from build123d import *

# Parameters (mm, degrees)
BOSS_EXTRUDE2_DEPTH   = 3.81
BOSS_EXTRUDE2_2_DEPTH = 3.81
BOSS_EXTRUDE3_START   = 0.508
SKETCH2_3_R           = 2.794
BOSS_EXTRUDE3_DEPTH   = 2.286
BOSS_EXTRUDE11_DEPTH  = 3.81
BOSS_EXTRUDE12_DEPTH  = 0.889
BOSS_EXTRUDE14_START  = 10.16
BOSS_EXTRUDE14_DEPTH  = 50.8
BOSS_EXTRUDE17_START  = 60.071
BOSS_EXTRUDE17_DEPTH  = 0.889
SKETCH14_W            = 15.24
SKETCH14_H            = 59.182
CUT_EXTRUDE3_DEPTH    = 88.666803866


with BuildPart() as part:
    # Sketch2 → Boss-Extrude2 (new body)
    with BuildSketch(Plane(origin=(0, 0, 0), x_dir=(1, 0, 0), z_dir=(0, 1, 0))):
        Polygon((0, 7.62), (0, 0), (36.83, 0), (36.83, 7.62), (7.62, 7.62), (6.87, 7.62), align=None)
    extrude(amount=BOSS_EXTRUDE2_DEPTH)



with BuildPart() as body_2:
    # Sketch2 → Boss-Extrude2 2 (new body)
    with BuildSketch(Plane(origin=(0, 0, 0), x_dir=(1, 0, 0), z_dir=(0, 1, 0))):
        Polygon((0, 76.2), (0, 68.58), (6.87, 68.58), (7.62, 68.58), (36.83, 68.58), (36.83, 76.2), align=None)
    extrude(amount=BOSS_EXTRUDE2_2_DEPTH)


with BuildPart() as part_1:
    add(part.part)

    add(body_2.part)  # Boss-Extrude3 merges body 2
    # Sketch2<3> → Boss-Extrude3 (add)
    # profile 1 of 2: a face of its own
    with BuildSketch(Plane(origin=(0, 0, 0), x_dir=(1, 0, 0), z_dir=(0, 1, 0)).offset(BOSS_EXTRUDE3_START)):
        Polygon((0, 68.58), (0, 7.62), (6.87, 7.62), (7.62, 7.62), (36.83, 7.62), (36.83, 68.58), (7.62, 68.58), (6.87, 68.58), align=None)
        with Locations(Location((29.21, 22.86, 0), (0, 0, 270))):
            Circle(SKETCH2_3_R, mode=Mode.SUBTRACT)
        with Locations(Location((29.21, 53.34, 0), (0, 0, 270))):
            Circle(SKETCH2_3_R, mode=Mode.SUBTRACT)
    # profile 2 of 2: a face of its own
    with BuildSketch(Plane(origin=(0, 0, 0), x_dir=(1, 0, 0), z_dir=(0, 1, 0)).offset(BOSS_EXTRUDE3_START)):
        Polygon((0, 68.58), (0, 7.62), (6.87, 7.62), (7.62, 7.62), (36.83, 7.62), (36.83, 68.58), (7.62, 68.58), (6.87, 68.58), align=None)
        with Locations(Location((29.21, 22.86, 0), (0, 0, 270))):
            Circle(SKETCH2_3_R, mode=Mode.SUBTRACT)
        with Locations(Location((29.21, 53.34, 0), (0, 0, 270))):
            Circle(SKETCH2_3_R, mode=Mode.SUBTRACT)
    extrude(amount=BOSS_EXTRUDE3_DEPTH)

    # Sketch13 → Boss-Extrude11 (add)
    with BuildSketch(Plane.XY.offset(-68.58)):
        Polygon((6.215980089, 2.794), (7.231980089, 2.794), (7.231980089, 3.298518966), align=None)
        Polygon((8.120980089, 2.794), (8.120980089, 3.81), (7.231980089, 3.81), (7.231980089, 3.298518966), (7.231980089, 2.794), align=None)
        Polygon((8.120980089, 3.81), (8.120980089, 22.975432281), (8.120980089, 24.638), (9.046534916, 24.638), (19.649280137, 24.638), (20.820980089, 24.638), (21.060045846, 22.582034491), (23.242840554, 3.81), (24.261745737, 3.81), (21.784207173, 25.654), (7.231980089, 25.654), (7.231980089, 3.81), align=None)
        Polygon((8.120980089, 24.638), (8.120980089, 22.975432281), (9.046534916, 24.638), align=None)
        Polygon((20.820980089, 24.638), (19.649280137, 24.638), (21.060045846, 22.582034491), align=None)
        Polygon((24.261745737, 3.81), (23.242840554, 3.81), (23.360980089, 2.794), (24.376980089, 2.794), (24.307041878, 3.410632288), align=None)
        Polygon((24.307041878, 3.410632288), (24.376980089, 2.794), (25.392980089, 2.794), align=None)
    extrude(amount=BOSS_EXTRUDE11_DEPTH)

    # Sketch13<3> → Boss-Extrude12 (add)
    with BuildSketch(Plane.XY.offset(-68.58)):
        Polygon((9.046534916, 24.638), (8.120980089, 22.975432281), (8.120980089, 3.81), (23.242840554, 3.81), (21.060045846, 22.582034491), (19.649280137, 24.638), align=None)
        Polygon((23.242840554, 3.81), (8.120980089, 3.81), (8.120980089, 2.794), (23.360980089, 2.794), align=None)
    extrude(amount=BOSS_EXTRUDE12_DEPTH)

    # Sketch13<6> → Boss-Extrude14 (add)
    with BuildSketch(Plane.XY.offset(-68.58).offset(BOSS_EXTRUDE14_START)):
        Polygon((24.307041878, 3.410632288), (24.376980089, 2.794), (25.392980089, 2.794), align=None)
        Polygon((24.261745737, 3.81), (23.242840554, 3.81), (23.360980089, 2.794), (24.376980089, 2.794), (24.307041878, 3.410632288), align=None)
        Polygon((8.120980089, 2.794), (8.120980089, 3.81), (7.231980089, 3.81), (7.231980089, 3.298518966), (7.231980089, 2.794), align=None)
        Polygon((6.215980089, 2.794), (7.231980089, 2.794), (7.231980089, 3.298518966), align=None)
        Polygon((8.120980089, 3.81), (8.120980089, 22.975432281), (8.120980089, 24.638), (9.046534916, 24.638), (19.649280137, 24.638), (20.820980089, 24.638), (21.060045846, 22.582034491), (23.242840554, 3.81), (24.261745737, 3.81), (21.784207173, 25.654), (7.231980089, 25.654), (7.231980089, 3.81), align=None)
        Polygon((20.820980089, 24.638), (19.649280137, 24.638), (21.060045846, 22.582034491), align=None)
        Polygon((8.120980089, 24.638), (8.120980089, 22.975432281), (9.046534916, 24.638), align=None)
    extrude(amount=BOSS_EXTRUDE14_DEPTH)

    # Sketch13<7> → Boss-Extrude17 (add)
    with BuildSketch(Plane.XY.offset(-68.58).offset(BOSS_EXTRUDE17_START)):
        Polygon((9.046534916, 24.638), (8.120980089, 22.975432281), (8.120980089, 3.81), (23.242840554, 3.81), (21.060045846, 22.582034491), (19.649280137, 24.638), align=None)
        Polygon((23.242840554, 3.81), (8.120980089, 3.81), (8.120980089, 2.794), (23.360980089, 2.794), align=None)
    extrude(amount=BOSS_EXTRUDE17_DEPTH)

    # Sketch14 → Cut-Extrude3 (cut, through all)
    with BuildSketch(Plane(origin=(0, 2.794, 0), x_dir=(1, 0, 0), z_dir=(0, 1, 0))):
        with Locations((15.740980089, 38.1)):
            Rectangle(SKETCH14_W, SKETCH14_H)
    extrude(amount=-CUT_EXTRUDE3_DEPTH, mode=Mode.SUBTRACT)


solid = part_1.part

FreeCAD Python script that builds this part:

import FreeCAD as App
import Part
import Sketcher
Q = App.Units.Quantity


def add_polygon(sketch, points):
    """Adds a closed chain of lines whose ends are joined by coincident constraints."""
    first, n = sketch.GeometryCount, len(points)
    for a, b in zip(points, points[1:] + points[:1]):
        sketch.addGeometry(Part.LineSegment(App.Vector(*a, 0), App.Vector(*b, 0)), False)
    for i in range(n):
        sketch.addConstraint(Sketcher.Constraint("Coincident", first + i, 2, first + (i + 1) % n, 1))

doc = App.newDocument("Part")
body = doc.addObject("PartDesign::Body", "Body")

sketch1 = body.newObject("Sketcher::SketchObject", "Sketch")
sketch1.AttachmentSupport = (doc.getObject("XZ_Plane"), [""])
sketch1.MapMode = "FlatFace"
add_polygon(sketch1, [(0, -8), (0, 0), (37, 0), (37, -8)])
sketch1.addConstraint([
    Sketcher.Constraint("Vertical", 0),
    Sketcher.Constraint("Horizontal", 1),
    Sketcher.Constraint("Vertical", 2),
    Sketcher.Constraint("Horizontal", 3),
    Sketcher.Constraint("Coincident", 0, 2, -1, 1),
    Sketcher.Constraint("DistanceY", 0, 1, 0, 2, Q("0.3 in")),
    Sketcher.Constraint("DistanceX", 1, 1, 1, 2, Q("1.45 in")),
])
pad1 = body.newObject("PartDesign::Pad", "Pad")
pad1.Profile = sketch1
pad1.Length = Q("0.15 in")
pad1.Reversed = True
body2 = doc.addObject("PartDesign::Body", "Body001")

sketch2 = body2.newObject("Sketcher::SketchObject", "Sketch001")
sketch2.AttachmentSupport = (doc.getObject("XZ_Plane001"), [""])
sketch2.MapMode = "FlatFace"
add_polygon(sketch2, [(0, -76), (0, -69), (37, -69), (37, -76)])
sketch2.addConstraint([
    Sketcher.Constraint("Vertical", 0),
    Sketcher.Constraint("Horizontal", 1),
    Sketcher.Constraint("Vertical", 2),
    Sketcher.Constraint("Horizontal", 3),
    Sketcher.Constraint("PointOnObject", 0, 2, -2),
    Sketcher.Constraint("DistanceY", 0, 1, 0, 2, Q("0.3 in")),
    Sketcher.Constraint("DistanceY", 2, 2, -1, 1, Q("3 in")),
    Sketcher.Constraint("DistanceX", 1, 1, 1, 2, Q("1.45 in")),
])
pad2 = body2.newObject("PartDesign::Pad", "Pad001")
pad2.Profile = sketch2
pad2.Length = Q("0.15 in")
pad2.Reversed = True
body.AllowCompound = True
doc.recompute()

boolean = body.newObject("PartDesign::Boolean", "Boolean")
boolean.Type = "Fuse"
boolean.addObjects([body2])

sketch3 = body.newObject("Sketcher::SketchObject", "Sketch002")
sketch3.AttachmentSupport = (doc.getObject("XZ_Plane"), [""])
sketch3.MapMode = "FlatFace"
sketch3.AttachmentOffset = App.Placement(App.Vector(0, 0, -0.02 * 25.4), App.Rotation())
add_polygon(sketch3, [(0, -68.6), (0, -7.6), (36.8, -7.6), (36.8, -68.6)])
sketch3.addGeometry(Part.Circle(App.Vector(29.2, -22.9, 0), App.Vector(0, 0, 1), 2.8), False)
sketch3.addGeometry(Part.Circle(App.Vector(29.2, -53.3, 0), App.Vector(0, 0, 1), 2.8), False)
sketch3.addConstraint([
    Sketcher.Constraint("Vertical", 0),
    Sketcher.Constraint("Horizontal", 1),
    Sketcher.Constraint("Vertical", 2),
    Sketcher.Constraint("Horizontal", 3),
    Sketcher.Constraint("Equal", 4, 5),
    Sketcher.Constraint("PointOnObject", 0, 2, -2),
    Sketcher.Constraint("Vertical", 4, 3, 5, 3),
    Sketcher.Constraint("Diameter", 4, Q("0.22 in")),
    Sketcher.Constraint("DistanceY", 0, 1, 0, 2, Q("2.4 in")),
    Sketcher.Constraint("DistanceX", 1, 1, 1, 2, Q("1.45 in")),
    Sketcher.Constraint("DistanceY", 4, 3, -1, 1, Q("0.9 in")),
    Sketcher.Constraint("DistanceY", 5, 3, -1, 1, Q("2.1 in")),
    Sketcher.Constraint("DistanceY", 0, 2, -1, 1, Q("0.3 in")),
    Sketcher.Constraint("DistanceX", 4, 3, 1, 2, Q("0.3 in")),
])
pad3 = body.newObject("PartDesign::Pad", "Pad002")
pad3.Profile = sketch3
pad3.Length = Q("0.09 in")
pad3.Reversed = True

sketch4 = body.newObject("Sketcher::SketchObject", "Sketch003")
sketch4.AttachmentSupport = (doc.getObject("XY_Plane"), [""])
sketch4.MapMode = "FlatFace"
sketch4.AttachmentOffset = App.Placement(App.Vector(0, 0, -2.7 * 25.4), App.Rotation())
add_polygon(sketch4, [(6.21598, 2.794), (8.12098, 2.794), (8.12098, 22.975432), (9.046535, 24.638), (19.64928, 24.638), (21.060046, 22.582034), (23.242841, 3.81), (23.36098, 2.794), (25.39298, 2.794), (24.307042, 3.410632), (24.261746, 3.81), (21.784207, 25.654), (7.23198, 25.654), (7.23198, 3.298519)])
sketch4.addConstraint([
    Sketcher.Constraint("Horizontal", 0),
    Sketcher.Constraint("Vertical", 1),
    Sketcher.Constraint("Horizontal", 3),
    Sketcher.Constraint("Horizontal", 7),
    Sketcher.Constraint("Horizontal", 11),
    Sketcher.Constraint("Vertical", 12),
    Sketcher.Constraint("DistanceX", 7, 1, 7, 2, Q("0.08 in")),
    Sketcher.Constraint("DistanceX", 0, 2, 6, 2, Q("0.6 in")),
    Sketcher.Constraint("DistanceX", 0, 1, 0, 2, Q("0.075 in")),
    Sketcher.Constraint("DistanceY", -1, 1, 0, 2, Q("0.11 in")),
    Sketcher.Constraint("DistanceY", -1, 1, 2, 2, Q("0.97 in")),
    Sketcher.Constraint("DistanceY", -1, 1, 5, 2, Q("0.15 in")),
    Sketcher.Constraint("DistanceY", -1, 1, 6, 2, Q("0.11 in")),
    Sketcher.Constraint("DistanceY", -1, 1, 9, 2, Q("0.15 in")),
    Sketcher.Constraint("DistanceY", -1, 1, 10, 2, Q("1.01 in")),
    Sketcher.Constraint("DistanceX", 13, 2, 12, 2, Q("0.04 in")),
    Sketcher.Constraint("Distance", 8, Q("1.248798 mm")),
    Sketcher.Constraint("DistanceY", 12, 2, 12, 1, Q("22.355481 mm")),
    Sketcher.Constraint("DistanceX", 1, 2, 3, 2, Q("11.5283 mm")),
    Sketcher.Constraint("DistanceX", 5, 2, 8, 2, Q("1.064201 mm")),
    Sketcher.Constraint("Distance", 9, Q("0.401928 mm")),
    Sketcher.Constraint("Distance", 10, Q("21.984052 mm")),
    Sketcher.Constraint("DistanceX", 3, 1, 3, 2, Q("10.602745 mm")),
    Sketcher.Constraint("DistanceX", 11, 2, 11, 1, Q("14.552227 mm")),
    Sketcher.Constraint("DistanceY", 1, 1, 1, 2, Q("20.181432 mm")),
    Sketcher.Constraint("DistanceX", -1, 1, 0, 2, Q("8.12098 mm")),
    Sketcher.Constraint("DistanceX", 2, 2, 4, 2, Q("12.013511 mm")),
    Sketcher.Constraint("Distance", 4, Q("2.493442 mm")),
])
pad4 = body.newObject("PartDesign::Pad", "Pad003")
pad4.Profile = sketch4
pad4.Length = Q("0.15 in")

sketch5 = body.newObject("Sketcher::SketchObject", "Sketch004")
sketch5.AttachmentSupport = (doc.getObject("XY_Plane"), [""])
sketch5.MapMode = "FlatFace"
sketch5.AttachmentOffset = App.Placement(App.Vector(0, 0, -2.7 * 25.4), App.Rotation())
add_polygon(sketch5, [(9.046535, 24.638), (8.12098, 22.975432), (8.12098, 2.794), (23.36098, 2.794), (23.242841, 3.81), (21.060046, 22.582034), (19.64928, 24.638)])
sketch5.addConstraint([
    Sketcher.Constraint("Vertical", 1),
    Sketcher.Constraint("Horizontal", 2),
    Sketcher.Constraint("Horizontal", 6),
    Sketcher.Constraint("DistanceX", 2, 1, 2, 2, Q("0.6 in")),
    Sketcher.Constraint("DistanceY", -1, 1, 1, 2, Q("0.11 in")),
    Sketcher.Constraint("DistanceY", -1, 1, 3, 2, Q("0.15 in")),
    Sketcher.Constraint("DistanceY", -1, 1, 5, 2, Q("0.97 in")),
    Sketcher.Constraint("DistanceX", 0, 2, 5, 2, Q("11.5283 mm")),
    Sketcher.Constraint("DistanceX", 6, 2, 6, 1, Q("10.602745 mm")),
    Sketcher.Constraint("DistanceY", 1, 2, 1, 1, Q("20.181432 mm")),
    Sketcher.Constraint("DistanceX", -1, 1, 0, 2, Q("8.12098 mm")),
    Sketcher.Constraint("DistanceX", -1, 1, 3, 2, Q("23.242841 mm")),
    Sketcher.Constraint("DistanceX", 6, 2, 4, 2, Q("12.013511 mm")),
    Sketcher.Constraint("Distance", 4, Q("18.898515 mm")),
])
pad5 = body.newObject("PartDesign::Pad", "Pad004")
pad5.Profile = sketch5
pad5.Length = Q("0.035 in")

sketch6 = body.newObject("Sketcher::SketchObject", "Sketch005")
sketch6.AttachmentSupport = (doc.getObject("XY_Plane"), [""])
sketch6.MapMode = "FlatFace"
sketch6.AttachmentOffset = App.Placement(App.Vector(0, 0, -2.3 * 25.4), App.Rotation())
add_polygon(sketch6, [(25.39298, 2.794), (24.307042, 3.410632), (24.261746, 3.81), (21.784207, 25.654), (7.23198, 25.654), (7.23198, 3.298519), (6.21598, 2.794), (8.12098, 2.794), (8.12098, 22.975432), (9.046535, 24.638), (19.64928, 24.638), (21.060046, 22.582034), (23.242841, 3.81), (23.36098, 2.794)])
sketch6.addConstraint([
    Sketcher.Constraint("Horizontal", 3),
    Sketcher.Constraint("Vertical", 4),
    Sketcher.Constraint("Horizontal", 6),
    Sketcher.Constraint("Vertical", 7),
    Sketcher.Constraint("Horizontal", 9),
    Sketcher.Constraint("Horizontal", 13),
    Sketcher.Constraint("DistanceX", 13, 1, 13, 2, Q("0.08 in")),
    Sketcher.Constraint("DistanceY", 5, 2, 3, 2, Q("0.9 in")),
    Sketcher.Constraint("DistanceX", 6, 2, 12, 2, Q("0.6 in")),
    Sketcher.Constraint("DistanceX", 6, 1, 6, 2, Q("0.075 in")),
    Sketcher.Constraint("DistanceY", -1, 1, 1, 2, Q("0.15 in")),
    Sketcher.Constraint("DistanceY", -1, 1, 2, 2, Q("1.01 in")),
    Sketcher.Constraint("DistanceY", -1, 1, 8, 2, Q("0.97 in")),
    Sketcher.Constraint("DistanceY", -1, 1, 11, 2, Q("0.15 in")),
    Sketcher.Constraint("DistanceY", -1, 1, 12, 2, Q("0.11 in")),
    Sketcher.Constraint("DistanceX", 5, 2, 4, 2, Q("0.04 in")),
    Sketcher.Constraint("Distance", 0, Q("1.248798 mm")),
    Sketcher.Constraint("DistanceY", 4, 2, 4, 1, Q("22.355481 mm")),
    Sketcher.Constraint("DistanceX", 7, 2, 9, 2, Q("11.5283 mm")),
    Sketcher.Constraint("DistanceX", 11, 2, 0, 2, Q("1.064201 mm")),
    Sketcher.Constraint("Distance", 1, Q("0.401928 mm")),
    Sketcher.Constraint("Distance", 2, Q("21.984052 mm")),
    Sketcher.Constraint("DistanceX", 3, 2, 3, 1, Q("14.552227 mm")),
    Sketcher.Constraint("DistanceX", 9, 1, 9, 2, Q("10.602745 mm")),
    Sketcher.Constraint("DistanceY", 7, 1, 7, 2, Q("20.181432 mm")),
    Sketcher.Constraint("DistanceX", -1, 1, 0, 2, Q("24.307042 mm")),
    Sketcher.Constraint("DistanceX", 10, 2, 2, 2, Q("0.724161 mm")),
    Sketcher.Constraint("Distance", 10, Q("2.493442 mm")),
])
pad6 = body.newObject("PartDesign::Pad", "Pad005")
pad6.Profile = sketch6
pad6.Length = Q("2 in")

sketch7 = body.newObject("Sketcher::SketchObject", "Sketch006")
sketch7.AttachmentSupport = (doc.getObject("XY_Plane"), [""])
sketch7.MapMode = "FlatFace"
sketch7.AttachmentOffset = App.Placement(App.Vector(0, 0, -0.335 * 25.4), App.Rotation())
add_polygon(sketch7, [(9.046535, 24.638), (8.12098, 22.975432), (8.12098, 2.794), (23.36098, 2.794), (23.242841, 3.81), (21.060046, 22.582034), (19.64928, 24.638)])
sketch7.addConstraint([
    Sketcher.Constraint("Vertical", 1),
    Sketcher.Constraint("Horizontal", 2),
    Sketcher.Constraint("Horizontal", 6),
    Sketcher.Constraint("DistanceX", 2, 1, 2, 2, Q("0.6 in")),
    Sketcher.Constraint("DistanceY", -1, 1, 1, 2, Q("0.11 in")),
    Sketcher.Constraint("DistanceY", -1, 1, 3, 2, Q("0.15 in")),
    Sketcher.Constraint("DistanceY", -1, 1, 5, 2, Q("0.97 in")),
    Sketcher.Constraint("DistanceX", 0, 2, 5, 2, Q("11.5283 mm")),
    Sketcher.Constraint("DistanceX", 6, 2, 6, 1, Q("10.602745 mm")),
    Sketcher.Constraint("DistanceY", 1, 2, 1, 1, Q("20.181432 mm")),
    Sketcher.Constraint("DistanceX", -1, 1, 0, 2, Q("8.12098 mm")),
    Sketcher.Constraint("DistanceX", -1, 1, 3, 2, Q("23.242841 mm")),
    Sketcher.Constraint("DistanceX", 6, 2, 4, 2, Q("12.013511 mm")),
    Sketcher.Constraint("Distance", 4, Q("18.898515 mm")),
])
pad7 = body.newObject("PartDesign::Pad", "Pad006")
pad7.Profile = sketch7
pad7.Length = Q("0.035 in")

sketch8 = body.newObject("Sketcher::SketchObject", "Sketch007")
sketch8.AttachmentSupport = (doc.getObject("XZ_Plane"), [""])
sketch8.MapMode = "FlatFace"
sketch8.AttachmentOffset = App.Placement(App.Vector(0, 0, -0.11 * 25.4), App.Rotation())
add_polygon(sketch8, [(8, -68), (8, -9), (23, -9), (23, -68)])
sketch8.addConstraint([
    Sketcher.Constraint("Vertical", 0),
    Sketcher.Constraint("Horizontal", 1),
    Sketcher.Constraint("Vertical", 2),
    Sketcher.Constraint("Horizontal", 3),
    Sketcher.Constraint("DistanceX", 1, 1, 1, 2, Q("0.6 in")),
    Sketcher.Constraint("DistanceY", 0, 1, 0, 2, Q("2.33 in")),
    Sketcher.Constraint("DistanceY", 0, 2, -1, 1, Q("0.335 in")),
    Sketcher.Constraint("DistanceX", -1, 1, 0, 2, Q("8.12098 mm")),
])
pocket1 = body.newObject("PartDesign::Pocket", "Pocket")
pocket1.Profile = sketch8
pocket1.Type = "ThroughAll"
pocket1.Reversed = True

doc.recompute()
